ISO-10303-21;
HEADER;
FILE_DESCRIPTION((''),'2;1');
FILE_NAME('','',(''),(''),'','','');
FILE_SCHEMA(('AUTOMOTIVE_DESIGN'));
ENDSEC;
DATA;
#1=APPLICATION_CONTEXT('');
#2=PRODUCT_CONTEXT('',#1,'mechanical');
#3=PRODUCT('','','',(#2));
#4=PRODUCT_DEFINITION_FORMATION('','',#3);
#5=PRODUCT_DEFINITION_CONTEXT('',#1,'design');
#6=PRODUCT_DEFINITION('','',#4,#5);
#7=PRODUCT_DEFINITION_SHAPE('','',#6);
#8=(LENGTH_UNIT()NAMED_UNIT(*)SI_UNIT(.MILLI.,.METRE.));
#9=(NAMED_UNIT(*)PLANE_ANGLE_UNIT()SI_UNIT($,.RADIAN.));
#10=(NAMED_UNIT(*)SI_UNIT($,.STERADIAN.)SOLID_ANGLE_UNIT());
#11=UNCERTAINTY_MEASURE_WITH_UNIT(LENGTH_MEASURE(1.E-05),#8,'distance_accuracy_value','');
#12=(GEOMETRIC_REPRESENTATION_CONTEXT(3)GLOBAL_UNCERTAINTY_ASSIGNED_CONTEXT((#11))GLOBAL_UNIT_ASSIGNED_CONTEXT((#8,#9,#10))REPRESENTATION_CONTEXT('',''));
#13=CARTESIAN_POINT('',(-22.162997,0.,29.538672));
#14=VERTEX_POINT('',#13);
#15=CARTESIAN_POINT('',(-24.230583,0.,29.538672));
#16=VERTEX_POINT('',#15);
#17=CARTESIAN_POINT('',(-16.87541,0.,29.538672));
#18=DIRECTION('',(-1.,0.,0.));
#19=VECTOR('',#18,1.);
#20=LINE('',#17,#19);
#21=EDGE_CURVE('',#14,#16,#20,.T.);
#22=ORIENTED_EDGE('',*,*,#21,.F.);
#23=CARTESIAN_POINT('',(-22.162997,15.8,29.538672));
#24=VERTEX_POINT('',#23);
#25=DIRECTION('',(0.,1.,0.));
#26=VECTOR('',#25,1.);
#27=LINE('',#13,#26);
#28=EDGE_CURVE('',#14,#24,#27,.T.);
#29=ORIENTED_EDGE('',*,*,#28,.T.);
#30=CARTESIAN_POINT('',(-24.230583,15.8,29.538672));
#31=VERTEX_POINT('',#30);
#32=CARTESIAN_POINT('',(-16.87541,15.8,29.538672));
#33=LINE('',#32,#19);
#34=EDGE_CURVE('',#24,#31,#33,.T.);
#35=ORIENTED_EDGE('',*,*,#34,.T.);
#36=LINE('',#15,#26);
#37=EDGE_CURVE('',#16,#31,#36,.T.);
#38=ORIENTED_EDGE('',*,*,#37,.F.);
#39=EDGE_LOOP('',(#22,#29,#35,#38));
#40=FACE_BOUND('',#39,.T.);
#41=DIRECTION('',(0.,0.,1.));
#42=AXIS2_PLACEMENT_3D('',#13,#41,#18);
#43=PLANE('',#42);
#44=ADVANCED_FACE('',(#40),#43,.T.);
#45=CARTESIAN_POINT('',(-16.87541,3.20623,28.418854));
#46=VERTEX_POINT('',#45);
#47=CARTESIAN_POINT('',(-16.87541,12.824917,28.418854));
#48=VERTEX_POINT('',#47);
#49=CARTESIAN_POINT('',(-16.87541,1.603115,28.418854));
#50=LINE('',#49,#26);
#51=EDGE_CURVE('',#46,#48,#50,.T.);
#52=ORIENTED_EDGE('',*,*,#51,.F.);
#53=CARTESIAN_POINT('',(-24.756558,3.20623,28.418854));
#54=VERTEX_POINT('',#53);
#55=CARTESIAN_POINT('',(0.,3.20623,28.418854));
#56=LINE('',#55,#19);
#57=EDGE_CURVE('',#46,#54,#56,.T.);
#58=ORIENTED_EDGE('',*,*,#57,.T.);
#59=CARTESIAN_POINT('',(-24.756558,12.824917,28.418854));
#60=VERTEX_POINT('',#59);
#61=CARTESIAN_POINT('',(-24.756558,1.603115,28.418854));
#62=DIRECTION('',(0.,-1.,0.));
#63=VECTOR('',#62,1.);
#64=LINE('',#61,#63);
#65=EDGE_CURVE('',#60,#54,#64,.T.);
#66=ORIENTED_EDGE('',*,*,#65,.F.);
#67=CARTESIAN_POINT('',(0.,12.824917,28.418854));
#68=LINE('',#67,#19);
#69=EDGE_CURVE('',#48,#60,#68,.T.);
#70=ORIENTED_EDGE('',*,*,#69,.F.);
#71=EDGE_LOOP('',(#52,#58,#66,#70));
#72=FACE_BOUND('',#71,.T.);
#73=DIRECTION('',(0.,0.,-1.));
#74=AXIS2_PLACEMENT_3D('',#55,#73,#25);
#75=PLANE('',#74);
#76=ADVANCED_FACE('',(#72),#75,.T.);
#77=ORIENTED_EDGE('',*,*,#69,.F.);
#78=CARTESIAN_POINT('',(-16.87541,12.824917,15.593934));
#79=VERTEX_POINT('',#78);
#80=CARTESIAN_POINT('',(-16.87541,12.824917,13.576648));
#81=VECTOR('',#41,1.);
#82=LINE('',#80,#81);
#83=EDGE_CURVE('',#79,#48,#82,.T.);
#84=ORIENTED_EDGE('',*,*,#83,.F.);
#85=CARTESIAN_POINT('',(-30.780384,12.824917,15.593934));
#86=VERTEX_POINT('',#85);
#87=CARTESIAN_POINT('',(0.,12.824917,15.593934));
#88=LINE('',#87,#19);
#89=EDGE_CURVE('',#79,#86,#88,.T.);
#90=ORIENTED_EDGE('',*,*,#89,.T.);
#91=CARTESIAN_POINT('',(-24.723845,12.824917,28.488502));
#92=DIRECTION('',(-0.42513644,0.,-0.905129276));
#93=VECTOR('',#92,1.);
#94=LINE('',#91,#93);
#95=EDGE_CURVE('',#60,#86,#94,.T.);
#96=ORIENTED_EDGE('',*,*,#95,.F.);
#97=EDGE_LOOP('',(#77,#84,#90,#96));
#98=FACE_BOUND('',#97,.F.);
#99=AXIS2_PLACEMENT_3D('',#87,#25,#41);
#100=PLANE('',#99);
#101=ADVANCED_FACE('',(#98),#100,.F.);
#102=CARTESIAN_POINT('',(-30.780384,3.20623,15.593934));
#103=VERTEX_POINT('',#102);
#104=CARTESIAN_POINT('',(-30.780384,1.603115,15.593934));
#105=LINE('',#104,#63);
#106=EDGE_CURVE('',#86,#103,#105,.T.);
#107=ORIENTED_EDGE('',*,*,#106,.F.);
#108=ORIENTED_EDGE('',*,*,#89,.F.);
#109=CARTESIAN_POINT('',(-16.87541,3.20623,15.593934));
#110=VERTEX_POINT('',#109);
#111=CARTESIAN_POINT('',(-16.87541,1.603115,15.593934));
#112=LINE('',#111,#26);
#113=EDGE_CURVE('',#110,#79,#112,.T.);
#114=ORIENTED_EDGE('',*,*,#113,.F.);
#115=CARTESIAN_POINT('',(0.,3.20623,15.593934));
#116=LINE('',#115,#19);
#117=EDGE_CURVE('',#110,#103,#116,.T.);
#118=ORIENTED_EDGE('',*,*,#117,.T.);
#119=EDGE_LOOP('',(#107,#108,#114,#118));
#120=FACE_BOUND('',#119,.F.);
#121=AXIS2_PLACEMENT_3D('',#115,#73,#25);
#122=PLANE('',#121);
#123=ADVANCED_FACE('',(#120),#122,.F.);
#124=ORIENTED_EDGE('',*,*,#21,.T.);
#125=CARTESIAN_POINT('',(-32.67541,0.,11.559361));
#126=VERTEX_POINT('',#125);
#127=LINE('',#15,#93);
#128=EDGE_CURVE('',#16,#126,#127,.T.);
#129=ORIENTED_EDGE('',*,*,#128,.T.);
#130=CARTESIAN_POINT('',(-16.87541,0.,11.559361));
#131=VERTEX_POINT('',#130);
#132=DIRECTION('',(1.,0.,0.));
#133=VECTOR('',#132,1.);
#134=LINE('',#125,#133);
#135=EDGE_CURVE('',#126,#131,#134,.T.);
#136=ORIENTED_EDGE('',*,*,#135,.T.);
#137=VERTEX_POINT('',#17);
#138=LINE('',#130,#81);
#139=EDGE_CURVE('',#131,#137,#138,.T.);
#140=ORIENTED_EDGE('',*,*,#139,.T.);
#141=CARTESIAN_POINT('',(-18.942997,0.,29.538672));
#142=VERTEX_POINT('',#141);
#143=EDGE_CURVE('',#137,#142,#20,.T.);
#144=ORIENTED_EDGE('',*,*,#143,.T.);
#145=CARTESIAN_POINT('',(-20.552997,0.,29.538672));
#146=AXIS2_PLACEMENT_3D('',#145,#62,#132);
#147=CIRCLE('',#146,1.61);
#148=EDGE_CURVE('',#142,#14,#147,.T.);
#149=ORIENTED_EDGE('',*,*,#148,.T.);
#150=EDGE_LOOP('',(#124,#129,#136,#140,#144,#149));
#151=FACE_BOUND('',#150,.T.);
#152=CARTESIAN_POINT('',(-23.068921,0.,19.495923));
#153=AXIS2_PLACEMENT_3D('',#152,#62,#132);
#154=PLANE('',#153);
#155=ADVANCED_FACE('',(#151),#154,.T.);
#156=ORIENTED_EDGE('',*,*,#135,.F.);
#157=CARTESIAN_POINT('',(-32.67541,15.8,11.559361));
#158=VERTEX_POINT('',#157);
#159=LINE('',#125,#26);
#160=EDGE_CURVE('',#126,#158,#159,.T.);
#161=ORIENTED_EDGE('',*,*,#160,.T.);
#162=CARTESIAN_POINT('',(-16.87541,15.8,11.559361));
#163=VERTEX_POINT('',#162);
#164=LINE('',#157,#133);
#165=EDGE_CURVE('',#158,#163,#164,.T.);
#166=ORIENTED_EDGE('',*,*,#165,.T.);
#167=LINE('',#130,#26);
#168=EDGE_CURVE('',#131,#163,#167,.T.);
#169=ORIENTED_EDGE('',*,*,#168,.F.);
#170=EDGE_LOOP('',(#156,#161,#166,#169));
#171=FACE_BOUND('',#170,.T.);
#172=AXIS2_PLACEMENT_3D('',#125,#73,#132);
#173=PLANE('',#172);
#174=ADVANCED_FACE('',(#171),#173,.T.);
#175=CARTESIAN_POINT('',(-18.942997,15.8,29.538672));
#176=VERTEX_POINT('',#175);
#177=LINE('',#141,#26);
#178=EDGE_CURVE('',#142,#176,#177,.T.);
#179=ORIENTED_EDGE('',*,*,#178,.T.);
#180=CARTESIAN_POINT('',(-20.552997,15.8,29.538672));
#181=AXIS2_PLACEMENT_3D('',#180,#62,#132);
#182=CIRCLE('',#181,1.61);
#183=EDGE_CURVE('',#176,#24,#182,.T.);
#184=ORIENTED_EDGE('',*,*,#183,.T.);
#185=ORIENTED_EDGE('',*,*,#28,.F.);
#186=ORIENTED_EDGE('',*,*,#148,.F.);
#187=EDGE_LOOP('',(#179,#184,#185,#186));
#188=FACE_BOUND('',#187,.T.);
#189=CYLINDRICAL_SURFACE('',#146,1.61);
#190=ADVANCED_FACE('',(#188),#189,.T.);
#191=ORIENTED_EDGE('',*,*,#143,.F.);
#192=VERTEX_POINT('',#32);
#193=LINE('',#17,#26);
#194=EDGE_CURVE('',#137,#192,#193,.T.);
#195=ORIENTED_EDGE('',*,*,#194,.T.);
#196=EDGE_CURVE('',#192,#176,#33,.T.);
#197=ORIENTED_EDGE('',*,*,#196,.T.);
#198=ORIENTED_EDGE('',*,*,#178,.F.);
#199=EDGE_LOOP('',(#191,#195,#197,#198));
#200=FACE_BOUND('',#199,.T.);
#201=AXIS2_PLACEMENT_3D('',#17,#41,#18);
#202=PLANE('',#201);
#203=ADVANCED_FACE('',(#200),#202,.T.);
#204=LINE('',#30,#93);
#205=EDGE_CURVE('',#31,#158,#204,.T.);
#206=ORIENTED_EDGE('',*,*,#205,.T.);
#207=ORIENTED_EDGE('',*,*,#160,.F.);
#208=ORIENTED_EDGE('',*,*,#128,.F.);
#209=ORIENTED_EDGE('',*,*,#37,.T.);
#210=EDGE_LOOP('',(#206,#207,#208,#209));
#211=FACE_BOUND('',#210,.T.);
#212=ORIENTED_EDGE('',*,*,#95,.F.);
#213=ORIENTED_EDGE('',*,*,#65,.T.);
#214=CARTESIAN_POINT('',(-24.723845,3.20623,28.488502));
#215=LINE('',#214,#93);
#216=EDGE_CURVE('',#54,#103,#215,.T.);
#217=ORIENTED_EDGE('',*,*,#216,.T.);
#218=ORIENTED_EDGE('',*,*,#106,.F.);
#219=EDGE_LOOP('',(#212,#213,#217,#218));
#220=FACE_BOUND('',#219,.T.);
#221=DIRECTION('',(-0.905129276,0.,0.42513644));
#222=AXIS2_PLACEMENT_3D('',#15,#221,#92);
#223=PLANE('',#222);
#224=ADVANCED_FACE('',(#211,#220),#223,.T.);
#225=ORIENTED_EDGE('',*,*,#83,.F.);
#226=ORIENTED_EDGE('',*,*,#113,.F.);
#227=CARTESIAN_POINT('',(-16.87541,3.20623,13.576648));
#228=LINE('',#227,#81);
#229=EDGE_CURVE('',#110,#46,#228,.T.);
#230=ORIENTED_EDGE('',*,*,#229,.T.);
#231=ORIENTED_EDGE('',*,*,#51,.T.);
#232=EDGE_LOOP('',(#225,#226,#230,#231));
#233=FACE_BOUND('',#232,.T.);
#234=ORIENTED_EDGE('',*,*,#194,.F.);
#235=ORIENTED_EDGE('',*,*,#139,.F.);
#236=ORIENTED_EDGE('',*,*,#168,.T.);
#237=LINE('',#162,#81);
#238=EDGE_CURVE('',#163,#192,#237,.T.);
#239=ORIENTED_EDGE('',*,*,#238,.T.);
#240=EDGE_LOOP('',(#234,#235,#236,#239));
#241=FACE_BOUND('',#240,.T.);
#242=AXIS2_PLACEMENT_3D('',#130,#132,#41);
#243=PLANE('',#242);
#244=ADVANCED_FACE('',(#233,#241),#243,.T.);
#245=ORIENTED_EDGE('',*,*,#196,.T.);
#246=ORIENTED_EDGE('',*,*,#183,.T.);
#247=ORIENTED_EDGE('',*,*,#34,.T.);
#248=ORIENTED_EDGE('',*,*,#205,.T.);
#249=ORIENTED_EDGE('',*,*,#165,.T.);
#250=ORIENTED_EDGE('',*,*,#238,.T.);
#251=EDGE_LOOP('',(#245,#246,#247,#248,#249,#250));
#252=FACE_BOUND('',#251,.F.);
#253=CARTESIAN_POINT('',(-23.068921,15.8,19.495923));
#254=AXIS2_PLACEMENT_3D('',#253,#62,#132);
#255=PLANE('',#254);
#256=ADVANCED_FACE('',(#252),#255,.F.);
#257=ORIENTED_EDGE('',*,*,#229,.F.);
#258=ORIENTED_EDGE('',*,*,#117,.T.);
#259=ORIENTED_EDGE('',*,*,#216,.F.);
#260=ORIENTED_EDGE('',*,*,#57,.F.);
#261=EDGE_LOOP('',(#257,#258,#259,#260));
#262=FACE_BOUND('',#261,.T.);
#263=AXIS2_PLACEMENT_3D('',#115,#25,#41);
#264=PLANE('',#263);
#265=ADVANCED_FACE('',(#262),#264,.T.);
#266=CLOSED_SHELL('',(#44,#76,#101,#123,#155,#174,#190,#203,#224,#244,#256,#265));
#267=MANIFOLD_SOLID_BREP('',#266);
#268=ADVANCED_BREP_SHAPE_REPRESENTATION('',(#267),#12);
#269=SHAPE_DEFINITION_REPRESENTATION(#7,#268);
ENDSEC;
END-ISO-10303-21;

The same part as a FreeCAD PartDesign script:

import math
import FreeCAD as App
import Part
import Sketcher
from FreeCAD import Vector
Q = App.Units.Quantity

doc = App.newDocument("Part")
body = doc.addObject("PartDesign::Body", "Body")

sketch1 = doc.addObject("Sketcher::SketchObject", "Sketch")
body.addObject(sketch1)
sketch1.AttachmentSupport = (doc.XZ_Plane, [""])
sketch1.MapMode = "FlatFace"
sketch1.addGeometry(Part.LineSegment(Vector(-16.9, 11.6, 0), Vector(-16.9, 29.5, 0)), False)
sketch1.addGeometry(Part.LineSegment(Vector(-16.9, 29.5, 0), Vector(-18.9, 29.5, 0)), False)
sketch1.addGeometry(Part.ArcOfCircle(Part.Circle(Vector(-20.6, 29.5, 0), Vector(0, 0, 1), 1.6), math.radians(0), math.radians(180)), False)
sketch1.addGeometry(Part.LineSegment(Vector(-22.2, 29.5, 0), Vector(-24.2, 29.5, 0)), False)
sketch1.addGeometry(Part.LineSegment(Vector(-24.2, 29.5, 0), Vector(-32.7, 11.6, 0)), False)
sketch1.addGeometry(Part.LineSegment(Vector(-32.7, 11.6, 0), Vector(-16.9, 11.6, 0)), False)
sketch1.addConstraint(Sketcher.Constraint("Coincident", 0, 2, 1, 1))
sketch1.addConstraint(Sketcher.Constraint("Coincident", 1, 2, 2, 1))
sketch1.addConstraint(Sketcher.Constraint("Coincident", 2, 2, 3, 1))
sketch1.addConstraint(Sketcher.Constraint("Coincident", 3, 2, 4, 1))
sketch1.addConstraint(Sketcher.Constraint("Coincident", 4, 2, 5, 1))
sketch1.addConstraint(Sketcher.Constraint("Coincident", 5, 2, 0, 1))
sketch1.addConstraint(Sketcher.Constraint("Vertical", 0))
sketch1.addConstraint(Sketcher.Constraint("Horizontal", 1))
sketch1.addConstraint(Sketcher.Constraint("Horizontal", 3))
sketch1.addConstraint(Sketcher.Constraint("Horizontal", 5))
sketch1.addConstraint(Sketcher.Constraint("Horizontal", 2, 3, 0, 2))
sketch1.addConstraint(Sketcher.Constraint("Horizontal", 1, 2, 2, 2))
sketch1.addConstraint(Sketcher.Constraint("Equal", 1, 3))
sketch1.addConstraint(Sketcher.Constraint("Radius", 2, Q("1.61 mm")))
sketch1.addConstraint(Sketcher.Constraint("DistanceX", 5, 1, 5, 2, Q("15.8 mm")))
sketch1.addConstraint(Sketcher.Constraint("DistanceY", 0, 1, 0, 2, Q("17.979311 mm")))
sketch1.addConstraint(Sketcher.Constraint("DistanceX", 1, 2, 1, 1, Q("2.067586 mm")))
sketch1.addConstraint(Sketcher.Constraint("DistanceY", -1, 1, 2, 3, Q("29.538672 mm")))
sketch1.addConstraint(Sketcher.Constraint("DistanceX", 0, 2, -1, 1, Q("16.87541 mm")))
pad1 = doc.addObject("PartDesign::Pad", "Pad")
body.addObject(pad1)
pad1.Profile = sketch1
pad1.Length = 15.8
pad1.Reversed = True

sketch2 = doc.addObject("Sketcher::SketchObject", "Sketch001")
body.addObject(sketch2)
sketch2.AttachmentSupport = (doc.YZ_Plane, [""])
sketch2.MapMode = "FlatFace"
sketch2.addGeometry(Part.LineSegment(Vector(3, 28, 0), Vector(3, 16, 0)), False)
sketch2.addGeometry(Part.LineSegment(Vector(3, 16, 0), Vector(13, 16, 0)), False)
sketch2.addGeometry(Part.LineSegment(Vector(13, 16, 0), Vector(13, 28, 0)), False)
sketch2.addGeometry(Part.LineSegment(Vector(13, 28, 0), Vector(3, 28, 0)), False)
sketch2.addConstraint(Sketcher.Constraint("Coincident", 0, 2, 1, 1))
sketch2.addConstraint(Sketcher.Constraint("Coincident", 1, 2, 2, 1))
sketch2.addConstraint(Sketcher.Constraint("Coincident", 2, 2, 3, 1))
sketch2.addConstraint(Sketcher.Constraint("Coincident", 3, 2, 0, 1))
sketch2.addConstraint(Sketcher.Constraint("Vertical", 0))
sketch2.addConstraint(Sketcher.Constraint("Horizontal", 1))
sketch2.addConstraint(Sketcher.Constraint("Vertical", 2))
sketch2.addConstraint(Sketcher.Constraint("Horizontal", 3))
sketch2.addConstraint(Sketcher.Constraint("DistanceY", 0, 2, 0, 1, Q("12.82492 mm")))
sketch2.addConstraint(Sketcher.Constraint("DistanceX", 1, 1, 1, 2, Q("9.618687 mm")))
sketch2.addConstraint(Sketcher.Constraint("DistanceX", -1, 1, 0, 2, Q("3.20623 mm")))
sketch2.addConstraint(Sketcher.Constraint("DistanceY", -1, 1, 0, 2, Q("15.593934 mm")))
pocket1 = doc.addObject("PartDesign::Pocket", "Pocket")
body.addObject(pocket1)
pocket1.Profile = sketch2
pocket1.Length = 55

doc.recompute()
